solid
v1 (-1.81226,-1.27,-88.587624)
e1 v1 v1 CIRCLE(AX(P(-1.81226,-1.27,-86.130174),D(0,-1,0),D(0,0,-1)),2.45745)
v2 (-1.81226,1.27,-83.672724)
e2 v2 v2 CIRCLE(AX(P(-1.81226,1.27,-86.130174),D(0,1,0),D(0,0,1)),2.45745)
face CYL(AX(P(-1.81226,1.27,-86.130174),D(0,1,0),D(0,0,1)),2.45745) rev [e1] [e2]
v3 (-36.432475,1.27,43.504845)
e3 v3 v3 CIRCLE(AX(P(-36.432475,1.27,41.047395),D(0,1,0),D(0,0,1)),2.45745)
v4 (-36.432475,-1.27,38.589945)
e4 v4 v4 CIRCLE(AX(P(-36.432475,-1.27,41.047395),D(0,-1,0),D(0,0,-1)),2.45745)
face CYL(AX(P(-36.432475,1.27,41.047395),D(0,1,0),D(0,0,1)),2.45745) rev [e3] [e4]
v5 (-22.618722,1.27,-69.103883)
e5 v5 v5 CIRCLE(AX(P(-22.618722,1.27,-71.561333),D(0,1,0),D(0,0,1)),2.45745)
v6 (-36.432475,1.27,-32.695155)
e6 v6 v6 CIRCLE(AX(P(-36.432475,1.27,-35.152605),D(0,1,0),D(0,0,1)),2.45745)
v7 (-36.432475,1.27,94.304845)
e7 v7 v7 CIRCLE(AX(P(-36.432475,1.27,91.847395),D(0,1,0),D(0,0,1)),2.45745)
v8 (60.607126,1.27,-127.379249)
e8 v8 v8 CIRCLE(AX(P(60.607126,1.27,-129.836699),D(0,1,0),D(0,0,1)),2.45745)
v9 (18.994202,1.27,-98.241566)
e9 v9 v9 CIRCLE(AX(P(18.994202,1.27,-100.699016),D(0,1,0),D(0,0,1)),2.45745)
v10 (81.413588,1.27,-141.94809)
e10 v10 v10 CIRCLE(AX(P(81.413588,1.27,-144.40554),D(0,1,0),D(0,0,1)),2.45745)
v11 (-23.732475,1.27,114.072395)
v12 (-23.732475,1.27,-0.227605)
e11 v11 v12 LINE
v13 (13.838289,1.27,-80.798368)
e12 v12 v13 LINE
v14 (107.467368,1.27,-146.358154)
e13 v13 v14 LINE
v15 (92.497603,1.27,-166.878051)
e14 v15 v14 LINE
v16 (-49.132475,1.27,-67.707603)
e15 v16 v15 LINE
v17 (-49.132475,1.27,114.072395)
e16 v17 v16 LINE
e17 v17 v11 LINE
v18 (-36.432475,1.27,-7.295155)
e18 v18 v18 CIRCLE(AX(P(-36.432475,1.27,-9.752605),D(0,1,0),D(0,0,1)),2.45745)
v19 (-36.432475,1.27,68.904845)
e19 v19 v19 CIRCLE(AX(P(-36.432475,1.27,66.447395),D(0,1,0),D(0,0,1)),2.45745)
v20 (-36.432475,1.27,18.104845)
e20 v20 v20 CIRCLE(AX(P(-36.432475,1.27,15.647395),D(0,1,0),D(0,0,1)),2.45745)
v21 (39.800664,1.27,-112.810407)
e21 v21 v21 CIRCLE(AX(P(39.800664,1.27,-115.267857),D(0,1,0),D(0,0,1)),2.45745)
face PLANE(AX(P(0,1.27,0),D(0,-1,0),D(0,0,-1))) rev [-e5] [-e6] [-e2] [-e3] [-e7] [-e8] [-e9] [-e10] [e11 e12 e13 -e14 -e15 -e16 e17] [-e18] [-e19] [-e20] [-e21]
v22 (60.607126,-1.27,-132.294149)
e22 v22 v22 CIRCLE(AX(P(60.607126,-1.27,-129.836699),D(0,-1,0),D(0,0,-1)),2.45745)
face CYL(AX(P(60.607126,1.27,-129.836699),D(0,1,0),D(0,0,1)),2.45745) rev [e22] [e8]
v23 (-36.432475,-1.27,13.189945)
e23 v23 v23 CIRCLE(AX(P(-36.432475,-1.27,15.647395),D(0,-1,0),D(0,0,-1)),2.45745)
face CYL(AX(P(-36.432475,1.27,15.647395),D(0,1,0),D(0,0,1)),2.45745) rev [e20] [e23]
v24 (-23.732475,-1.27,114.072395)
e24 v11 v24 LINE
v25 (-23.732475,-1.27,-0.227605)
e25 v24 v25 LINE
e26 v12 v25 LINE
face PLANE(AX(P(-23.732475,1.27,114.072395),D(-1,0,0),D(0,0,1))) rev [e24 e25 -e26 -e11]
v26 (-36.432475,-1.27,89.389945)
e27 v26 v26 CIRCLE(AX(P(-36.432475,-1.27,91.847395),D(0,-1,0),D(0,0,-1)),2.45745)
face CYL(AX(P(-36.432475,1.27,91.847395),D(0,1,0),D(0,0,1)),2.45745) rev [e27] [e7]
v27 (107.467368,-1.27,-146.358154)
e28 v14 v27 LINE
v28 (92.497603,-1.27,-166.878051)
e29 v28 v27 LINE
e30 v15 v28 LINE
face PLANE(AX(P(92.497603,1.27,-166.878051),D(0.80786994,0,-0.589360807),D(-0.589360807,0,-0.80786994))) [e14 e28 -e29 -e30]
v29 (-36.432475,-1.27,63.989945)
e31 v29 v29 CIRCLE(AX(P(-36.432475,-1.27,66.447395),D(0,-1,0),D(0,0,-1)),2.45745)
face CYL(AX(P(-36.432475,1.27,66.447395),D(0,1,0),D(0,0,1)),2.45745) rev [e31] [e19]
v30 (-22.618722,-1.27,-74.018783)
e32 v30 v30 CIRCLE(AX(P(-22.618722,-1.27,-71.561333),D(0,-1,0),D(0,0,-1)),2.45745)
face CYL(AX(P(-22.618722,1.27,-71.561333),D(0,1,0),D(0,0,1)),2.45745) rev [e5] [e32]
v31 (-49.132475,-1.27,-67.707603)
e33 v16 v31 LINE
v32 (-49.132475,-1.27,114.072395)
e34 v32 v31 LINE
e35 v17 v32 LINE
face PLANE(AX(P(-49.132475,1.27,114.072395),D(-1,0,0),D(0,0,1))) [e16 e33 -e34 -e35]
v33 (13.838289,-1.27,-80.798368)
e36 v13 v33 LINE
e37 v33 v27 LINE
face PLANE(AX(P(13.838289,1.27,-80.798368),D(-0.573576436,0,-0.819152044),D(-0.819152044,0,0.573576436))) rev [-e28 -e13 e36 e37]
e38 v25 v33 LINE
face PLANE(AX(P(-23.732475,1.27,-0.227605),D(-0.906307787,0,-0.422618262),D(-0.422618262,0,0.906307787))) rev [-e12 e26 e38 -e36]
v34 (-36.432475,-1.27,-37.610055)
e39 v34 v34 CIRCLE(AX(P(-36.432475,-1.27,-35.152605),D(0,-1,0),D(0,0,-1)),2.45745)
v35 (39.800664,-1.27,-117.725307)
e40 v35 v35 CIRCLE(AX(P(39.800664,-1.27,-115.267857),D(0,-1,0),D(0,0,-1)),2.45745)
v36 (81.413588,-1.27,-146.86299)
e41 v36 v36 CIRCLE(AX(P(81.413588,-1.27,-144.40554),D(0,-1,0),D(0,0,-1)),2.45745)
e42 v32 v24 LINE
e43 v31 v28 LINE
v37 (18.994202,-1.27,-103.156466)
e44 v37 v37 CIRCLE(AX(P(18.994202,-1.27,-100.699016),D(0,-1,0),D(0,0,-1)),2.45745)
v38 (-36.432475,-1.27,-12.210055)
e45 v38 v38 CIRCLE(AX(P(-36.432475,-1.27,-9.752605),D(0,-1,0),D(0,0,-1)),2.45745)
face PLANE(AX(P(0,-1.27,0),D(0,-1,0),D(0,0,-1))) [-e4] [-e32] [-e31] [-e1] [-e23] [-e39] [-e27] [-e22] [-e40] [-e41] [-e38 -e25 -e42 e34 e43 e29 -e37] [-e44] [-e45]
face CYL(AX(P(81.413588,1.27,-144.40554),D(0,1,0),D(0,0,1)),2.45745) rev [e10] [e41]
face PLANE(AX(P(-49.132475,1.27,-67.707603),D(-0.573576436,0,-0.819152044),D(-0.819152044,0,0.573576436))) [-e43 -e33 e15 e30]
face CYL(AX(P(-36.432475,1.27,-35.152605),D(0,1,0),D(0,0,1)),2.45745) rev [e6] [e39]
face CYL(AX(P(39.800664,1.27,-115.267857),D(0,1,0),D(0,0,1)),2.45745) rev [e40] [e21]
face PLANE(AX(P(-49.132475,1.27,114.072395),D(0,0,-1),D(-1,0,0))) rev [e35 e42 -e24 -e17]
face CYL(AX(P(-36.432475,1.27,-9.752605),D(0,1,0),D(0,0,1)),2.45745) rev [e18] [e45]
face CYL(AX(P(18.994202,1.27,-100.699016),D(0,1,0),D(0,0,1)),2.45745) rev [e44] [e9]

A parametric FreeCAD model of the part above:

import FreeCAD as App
import Part
import Sketcher
from FreeCAD import Vector
Q = App.Units.Quantity


def add_polygon(sketch, points):
    """Adds a closed chain of lines whose ends are joined by coincident constraints."""
    first, n = sketch.GeometryCount, len(points)
    for a, b in zip(points, points[1:] + points[:1]):
        sketch.addGeometry(Part.LineSegment(App.Vector(*a, 0), App.Vector(*b, 0)), False)
    for i in range(n):
        sketch.addConstraint(Sketcher.Constraint("Coincident", first + i, 2, first + (i + 1) % n, 1))

doc = App.newDocument("Part")
body = doc.addObject("PartDesign::Body", "Body")

# Sketch on XZ plane
sketch1 = doc.addObject("Sketcher::SketchObject", "Sketch")
body.addObject(sketch1)
sketch1.AttachmentSupport = (doc.XZ_Plane, [""])
sketch1.MapMode = "FlatFace"
add_polygon(sketch1, [(-49, 114), (-24, 114), (-24, 0), (14, -81), (107, -146), (92, -167), (-49, -68)])  # lines 0-6
sketch1.addConstraint([
    Sketcher.Constraint("Horizontal", 0),
    Sketcher.Constraint("Vertical", 1),
    Sketcher.Constraint("Vertical", 6),
    Sketcher.Constraint("Parallel", 3, 5),
    Sketcher.Constraint("DistanceX", 0, 1, 0, 2, Q("1 in")),
    Sketcher.Constraint("Distance", 4, Q("1 in")),
    Sketcher.Constraint("DistanceY", 1, 2, 1, 1, Q("4.5 in")),
    Sketcher.Constraint("Angle", 2, Q("-65 deg")),
    Sketcher.Constraint("Angle", 3, Q("-35 deg")),
    Sketcher.Constraint("Distance", 2, Q("3.5 in")),
    Sketcher.Constraint("Distance", 3, Q("4.5 in")),
    Sketcher.Constraint("Distance", 5, 172.8984),
    Sketcher.Constraint("DistanceX", -1, 1, 2, 2, 13.838289),
    Sketcher.Constraint("DistanceY", 4, 2, -1, 1, 166.878051),
])
pad1 = doc.addObject("PartDesign::Pad", "Pad")
body.addObject(pad1)
pad1.Profile = sketch1
pad1.Length = Q("0.1 in")
pad1.Midplane = True

# Sketch on XZ plane
sketch2 = doc.addObject("Sketcher::SketchObject", "Sketch001")
body.addObject(sketch2)
sketch2.AttachmentSupport = (doc.XZ_Plane, [""])
sketch2.MapMode = "FlatFace"
sketch2.AttachmentOffset = App.Placement(Vector(0, 0, -0.05 * 25.4), App.Rotation())
sketch2.addGeometry([
    Part.Circle(Vector(81.4, -144.4, 0), Vector(0, 0, 1), 2.5),  # 0
    Part.Circle(Vector(60.6, -129.8, 0), Vector(0, 0, 1), 2.5),  # 1
    Part.Circle(Vector(39.8, -115.3, 0), Vector(0, 0, 1), 2.5),  # 2
    Part.Circle(Vector(19, -100.7, 0), Vector(0, 0, 1), 2.5),  # 3
    Part.Circle(Vector(-1.8, -86.1, 0), Vector(0, 0, 1), 2.5),  # 4
    Part.Circle(Vector(-22.6, -71.6, 0), Vector(0, 0, 1), 2.5),  # 5
    Part.Circle(Vector(-36.4, -35.2, 0), Vector(0, 0, 1), 2.5),  # 6
    Part.Circle(Vector(-36.4, -9.8, 0), Vector(0, 0, 1), 2.5),  # 7
    Part.Circle(Vector(-36.4, 15.6, 0), Vector(0, 0, 1), 2.5),  # 8
    Part.Circle(Vector(-36.4, 41, 0), Vector(0, 0, 1), 2.5),  # 9
    Part.Circle(Vector(-36.4, 66.4, 0), Vector(0, 0, 1), 2.5),  # 10
    Part.Circle(Vector(-36.4, 91.8, 0), Vector(0, 0, 1), 2.5),  # 11
], False)
sketch2.addConstraint([
    Sketcher.Constraint("Equal", 0, 1),
    Sketcher.Constraint("Equal", 1, 2),
    Sketcher.Constraint("Equal", 2, 3),
    Sketcher.Constraint("Equal", 3, 4),
    Sketcher.Constraint("Equal", 4, 5),
    Sketcher.Constraint("Equal", 5, 6),
    Sketcher.Constraint("Equal", 6, 7),
    Sketcher.Constraint("Equal", 7, 8),
    Sketcher.Constraint("Equal", 8, 9),
    Sketcher.Constraint("Equal", 9, 10),
    Sketcher.Constraint("Equal", 10, 11),
    Sketcher.Constraint("Vertical", 6, 3, 7, 3),
    Sketcher.Constraint("Vertical", 7, 3, 8, 3),
    Sketcher.Constraint("Vertical", 8, 3, 9, 3),
    Sketcher.Constraint("Vertical", 9, 3, 10, 3),
    Sketcher.Constraint("Vertical", 10, 3, 11, 3),
    Sketcher.Constraint("DistanceY", 6, 3, 7, 3, Q("1 in")),
    Sketcher.Constraint("DistanceY", 7, 3, 8, 3, Q("1 in")),
    Sketcher.Constraint("DistanceY", 8, 3, 9, 3, Q("1 in")),
    Sketcher.Constraint("DistanceY", 9, 3, 10, 3, Q("1 in")),
    Sketcher.Constraint("DistanceY", 10, 3, 11, 3, Q("1 in")),
    Sketcher.Constraint("Diameter", 0, Q("0.1935 in")),
    Sketcher.Constraint("DistanceY", 1, 3, -1, 1, 129.836699),
    Sketcher.Constraint("DistanceX", 6, 3, 1, 3, 97.0396),
    Sketcher.Constraint("DistanceY", 0, 3, -1, 1, 144.40554),
    Sketcher.Constraint("DistanceX", 4, 3, -1, 1, 1.81226),
    Sketcher.Constraint("DistanceX", 5, 3, -1, 1, 22.618722),
    Sketcher.Constraint("DistanceX", 1, 3, 0, 3, 20.806462),
    Sketcher.Constraint("DistanceX", 2, 3, 1, 3, 20.806462),
    Sketcher.Constraint("DistanceY", 1, 3, 2, 3, 14.568841),
    Sketcher.Constraint("DistanceX", 3, 3, 2, 3, 20.806462),
    Sketcher.Constraint("DistanceY", 2, 3, 3, 3, 14.568841),
    Sketcher.Constraint("DistanceX", 4, 3, 3, 3, 20.806462),
    Sketcher.Constraint("DistanceY", 3, 3, 4, 3, 14.568841),
    Sketcher.Constraint("DistanceY", 4, 3, 5, 3, 14.568841),
    Sketcher.Constraint("DistanceY", 4, 3, 6, 3, 50.977569),
])
doc.recompute()
hole = doc.addObject("PartDesign::Hole", "Hole")
body.addObject(hole)
hole.Profile = sketch2
hole.ThreadType = "None"
hole.Diameter = Q("0.1935 in")
hole.DepthType = "Dimension"
hole.Depth = Q("2 in")
hole.DrillPoint = "Angled"
hole.DrillPointAngle = 118
hole.Reversed = True

doc.recompute()
